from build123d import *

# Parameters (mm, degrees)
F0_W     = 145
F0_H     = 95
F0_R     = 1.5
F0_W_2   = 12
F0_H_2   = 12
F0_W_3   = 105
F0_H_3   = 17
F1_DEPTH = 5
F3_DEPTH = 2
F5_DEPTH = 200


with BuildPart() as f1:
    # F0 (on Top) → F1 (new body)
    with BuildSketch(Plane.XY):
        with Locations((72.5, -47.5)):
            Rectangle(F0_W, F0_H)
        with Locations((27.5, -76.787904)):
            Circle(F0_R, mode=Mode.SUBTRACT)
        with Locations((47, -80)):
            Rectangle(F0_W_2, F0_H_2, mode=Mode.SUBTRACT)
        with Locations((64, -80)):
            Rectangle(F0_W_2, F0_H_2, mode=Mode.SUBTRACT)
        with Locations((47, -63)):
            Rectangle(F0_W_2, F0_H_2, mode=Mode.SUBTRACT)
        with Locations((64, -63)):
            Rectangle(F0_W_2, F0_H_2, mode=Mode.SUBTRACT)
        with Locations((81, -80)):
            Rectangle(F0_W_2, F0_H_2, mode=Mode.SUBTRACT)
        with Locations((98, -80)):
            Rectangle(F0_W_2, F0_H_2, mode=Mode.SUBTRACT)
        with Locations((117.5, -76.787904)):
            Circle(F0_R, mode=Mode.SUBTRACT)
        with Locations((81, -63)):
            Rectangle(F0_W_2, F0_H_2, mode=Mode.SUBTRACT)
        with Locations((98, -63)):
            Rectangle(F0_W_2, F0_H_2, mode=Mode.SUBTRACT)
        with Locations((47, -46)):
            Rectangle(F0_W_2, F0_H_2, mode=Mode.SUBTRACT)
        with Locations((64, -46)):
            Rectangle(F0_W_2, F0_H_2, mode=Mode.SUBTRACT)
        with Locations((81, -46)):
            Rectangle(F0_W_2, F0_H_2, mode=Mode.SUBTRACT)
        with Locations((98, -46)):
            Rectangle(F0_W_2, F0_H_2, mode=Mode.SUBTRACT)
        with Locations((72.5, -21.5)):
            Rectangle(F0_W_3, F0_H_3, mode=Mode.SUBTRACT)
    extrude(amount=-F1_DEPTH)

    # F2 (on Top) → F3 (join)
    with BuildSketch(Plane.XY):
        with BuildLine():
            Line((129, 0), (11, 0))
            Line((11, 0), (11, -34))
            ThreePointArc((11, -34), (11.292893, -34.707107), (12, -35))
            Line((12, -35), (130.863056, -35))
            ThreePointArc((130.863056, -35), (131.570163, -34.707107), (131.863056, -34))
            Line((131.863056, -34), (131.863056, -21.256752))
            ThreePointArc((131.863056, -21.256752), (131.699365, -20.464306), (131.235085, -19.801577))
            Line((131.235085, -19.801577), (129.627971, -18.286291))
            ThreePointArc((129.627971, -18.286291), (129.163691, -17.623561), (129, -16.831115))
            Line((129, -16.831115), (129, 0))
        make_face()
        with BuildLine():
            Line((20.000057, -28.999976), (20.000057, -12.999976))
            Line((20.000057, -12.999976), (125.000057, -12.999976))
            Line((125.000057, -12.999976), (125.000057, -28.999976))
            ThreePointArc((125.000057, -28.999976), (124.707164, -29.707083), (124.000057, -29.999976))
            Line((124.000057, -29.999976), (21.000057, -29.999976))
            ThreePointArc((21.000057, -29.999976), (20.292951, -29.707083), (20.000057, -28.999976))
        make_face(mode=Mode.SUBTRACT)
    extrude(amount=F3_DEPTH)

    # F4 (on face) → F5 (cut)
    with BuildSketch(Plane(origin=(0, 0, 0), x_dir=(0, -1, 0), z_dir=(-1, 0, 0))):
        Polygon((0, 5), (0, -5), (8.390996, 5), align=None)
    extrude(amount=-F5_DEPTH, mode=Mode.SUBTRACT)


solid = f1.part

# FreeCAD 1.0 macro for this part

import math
import FreeCAD as App
import Part
import Sketcher
from FreeCAD import Vector
Q = App.Units.Quantity

doc = App.newDocument("Part")
params = doc.addObject("Spreadsheet::Sheet", "Params")
for row, (alias, value) in enumerate([
    ("sketch1_diameter", "3 mm"),
    ("sketch1_width", "145 mm"),
    ("sketch1_width2", "12 mm"),
    ("sketch1_width3", "105 mm"),
    ("sketch1_height", "95 mm"),
    ("pad1_length", "5 mm"),
    ("sketch2_radius", "0.999999 mm"),
    ("sketch2_width", "118 mm"),
    ("sketch2_width2", "105 mm"),
    ("sketch2_height", "34 mm"),
    ("sketch2_height2", "16 mm"),
    ("pad2_length", "2 mm"),
    ("sketch3_height", "10 mm"),
    ("pocket1_length", "200 mm"),
], start=1):
    params.set(f"A{row}", alias)
    params.set(f"B{row}", "=" + value)
    params.setAlias(f"B{row}", alias)

body = doc.addObject("PartDesign::Body", "Body")

# Sketch on XY plane
sketch1 = doc.addObject("Sketcher::SketchObject", "Sketch")
body.addObject(sketch1)
sketch1.AttachmentSupport = (doc.XY_Plane, [""])
sketch1.MapMode = "FlatFace"
sketch1.addGeometry([
    Part.LineSegment(Vector(0, 0, 0), Vector(0, -95, 0)),  # 0
    Part.LineSegment(Vector(0, -95, 0), Vector(145, -95, 0)),  # 1
    Part.LineSegment(Vector(145, -95, 0), Vector(145, 0, 0)),  # 2
    Part.LineSegment(Vector(145, 0, 0), Vector(0, 0, 0)),  # 3
    Part.Circle(Vector(27.5, -76.8, 0), Vector(0, 0, 1), 1.5),  # 4
    Part.LineSegment(Vector(53, -86, 0), Vector(41, -86, 0)),  # 5
    Part.LineSegment(Vector(41, -86, 0), Vector(41, -74, 0)),  # 6
    Part.LineSegment(Vector(41, -74, 0), Vector(53, -74, 0)),  # 7
    Part.LineSegment(Vector(53, -74, 0), Vector(53, -86, 0)),  # 8
    Part.LineSegment(Vector(70, -86, 0), Vector(58, -86, 0)),  # 9
    Part.LineSegment(Vector(58, -86, 0), Vector(58, -74, 0)),  # 10
    Part.LineSegment(Vector(58, -74, 0), Vector(70, -74, 0)),  # 11
    Part.LineSegment(Vector(70, -74, 0), Vector(70, -86, 0)),  # 12
    Part.LineSegment(Vector(53, -69, 0), Vector(41, -69, 0)),  # 13
    Part.LineSegment(Vector(41, -69, 0), Vector(41, -57, 0)),  # 14
    Part.LineSegment(Vector(41, -57, 0), Vector(53, -57, 0)),  # 15
    Part.LineSegment(Vector(53, -57, 0), Vector(53, -69, 0)),  # 16
    Part.LineSegment(Vector(70, -69, 0), Vector(58, -69, 0)),  # 17
    Part.LineSegment(Vector(58, -69, 0), Vector(58, -57, 0)),  # 18
    Part.LineSegment(Vector(58, -57, 0), Vector(70, -57, 0)),  # 19
    Part.LineSegment(Vector(70, -57, 0), Vector(70, -69, 0)),  # 20
    Part.LineSegment(Vector(87, -86, 0), Vector(75, -86, 0)),  # 21
    Part.LineSegment(Vector(75, -86, 0), Vector(75, -74, 0)),  # 22
    Part.LineSegment(Vector(75, -74, 0), Vector(87, -74, 0)),  # 23
    Part.LineSegment(Vector(87, -74, 0), Vector(87, -86, 0)),  # 24
    Part.LineSegment(Vector(104, -86, 0), Vector(92, -86, 0)),  # 25
    Part.LineSegment(Vector(92, -86, 0), Vector(92, -74, 0)),  # 26
    Part.LineSegment(Vector(92, -74, 0), Vector(104, -74, 0)),  # 27
    Part.LineSegment(Vector(104, -74, 0), Vector(104, -86, 0)),  # 28
    Part.Circle(Vector(117.5, -76.8, 0), Vector(0, 0, 1), 1.5),  # 29
    Part.LineSegment(Vector(87, -69, 0), Vector(75, -69, 0)),  # 30
    Part.LineSegment(Vector(75, -69, 0), Vector(75, -57, 0)),  # 31
    Part.LineSegment(Vector(75, -57, 0), Vector(87, -57, 0)),  # 32
    Part.LineSegment(Vector(87, -57, 0), Vector(87, -69, 0)),  # 33
    Part.LineSegment(Vector(104, -69, 0), Vector(92, -69, 0)),  # 34
    Part.LineSegment(Vector(92, -69, 0), Vector(92, -57, 0)),  # 35
    Part.LineSegment(Vector(92, -57, 0), Vector(104, -57, 0)),  # 36
    Part.LineSegment(Vector(104, -57, 0), Vector(104, -69, 0)),  # 37
    Part.LineSegment(Vector(53, -52, 0), Vector(41, -52, 0)),  # 38
    Part.LineSegment(Vector(41, -52, 0), Vector(41, -40, 0)),  # 39
    Part.LineSegment(Vector(41, -40, 0), Vector(53, -40, 0)),  # 40
    Part.LineSegment(Vector(53, -40, 0), Vector(53, -52, 0)),  # 41
    Part.LineSegment(Vector(70, -52, 0), Vector(58, -52, 0)),  # 42
    Part.LineSegment(Vector(58, -52, 0), Vector(58, -40, 0)),  # 43
    Part.LineSegment(Vector(58, -40, 0), Vector(70, -40, 0)),  # 44
    Part.LineSegment(Vector(70, -40, 0), Vector(70, -52, 0)),  # 45
    Part.LineSegment(Vector(87, -52, 0), Vector(75, -52, 0)),  # 46
    Part.LineSegment(Vector(75, -52, 0), Vector(75, -40, 0)),  # 47
    Part.LineSegment(Vector(75, -40, 0), Vector(87, -40, 0)),  # 48
    Part.LineSegment(Vector(87, -40, 0), Vector(87, -52, 0)),  # 49
    Part.LineSegment(Vector(104, -52, 0), Vector(92, -52, 0)),  # 50
    Part.LineSegment(Vector(92, -52, 0), Vector(92, -40, 0)),  # 51
    Part.LineSegment(Vector(92, -40, 0), Vector(104, -40, 0)),  # 52
    Part.LineSegment(Vector(104, -40, 0), Vector(104, -52, 0)),  # 53
    Part.LineSegment(Vector(125, -30, 0), Vector(20, -30, 0)),  # 54
    Part.LineSegment(Vector(20, -30, 0), Vector(20, -13, 0)),  # 55
    Part.LineSegment(Vector(20, -13, 0), Vector(125, -13, 0)),  # 56
    Part.LineSegment(Vector(125, -13, 0), Vector(125, -30, 0)),  # 57
], False)
sketch1.addConstraint([
    Sketcher.Constraint("Coincident", 0, 2, 1, 1),
    Sketcher.Constraint("Coincident", 1, 2, 2, 1),
    Sketcher.Constraint("Coincident", 2, 2, 3, 1),
    Sketcher.Constraint("Coincident", 3, 2, 0, 1),
    Sketcher.Constraint("Coincident", 5, 2, 6, 1),
    Sketcher.Constraint("Coincident", 6, 2, 7, 1),
    Sketcher.Constraint("Coincident", 7, 2, 8, 1),
    Sketcher.Constraint("Coincident", 8, 2, 5, 1),
    Sketcher.Constraint("Coincident", 9, 2, 10, 1),
    Sketcher.Constraint("Coincident", 10, 2, 11, 1),
    Sketcher.Constraint("Coincident", 11, 2, 12, 1),
    Sketcher.Constraint("Coincident", 12, 2, 9, 1),
    Sketcher.Constraint("Coincident", 13, 2, 14, 1),
    Sketcher.Constraint("Coincident", 14, 2, 15, 1),
    Sketcher.Constraint("Coincident", 15, 2, 16, 1),
    Sketcher.Constraint("Coincident", 16, 2, 13, 1),
    Sketcher.Constraint("Coincident", 17, 2, 18, 1),
    Sketcher.Constraint("Coincident", 18, 2, 19, 1),
    Sketcher.Constraint("Coincident", 19, 2, 20, 1),
    Sketcher.Constraint("Coincident", 20, 2, 17, 1),
    Sketcher.Constraint("Coincident", 21, 2, 22, 1),
    Sketcher.Constraint("Coincident", 22, 2, 23, 1),
    Sketcher.Constraint("Coincident", 23, 2, 24, 1),
    Sketcher.Constraint("Coincident", 24, 2, 21, 1),
    Sketcher.Constraint("Coincident", 25, 2, 26, 1),
    Sketcher.Constraint("Coincident", 26, 2, 27, 1),
    Sketcher.Constraint("Coincident", 27, 2, 28, 1),
    Sketcher.Constraint("Coincident", 28, 2, 25, 1),
    Sketcher.Constraint("Coincident", 30, 2, 31, 1),
    Sketcher.Constraint("Coincident", 31, 2, 32, 1),
    Sketcher.Constraint("Coincident", 32, 2, 33, 1),
    Sketcher.Constraint("Coincident", 33, 2, 30, 1),
    Sketcher.Constraint("Coincident", 34, 2, 35, 1),
    Sketcher.Constraint("Coincident", 35, 2, 36, 1),
    Sketcher.Constraint("Coincident", 36, 2, 37, 1),
    Sketcher.Constraint("Coincident", 37, 2, 34, 1),
    Sketcher.Constraint("Coincident", 38, 2, 39, 1),
    Sketcher.Constraint("Coincident", 39, 2, 40, 1),
    Sketcher.Constraint("Coincident", 40, 2, 41, 1),
    Sketcher.Constraint("Coincident", 41, 2, 38, 1),
    Sketcher.Constraint("Coincident", 42, 2, 43, 1),
    Sketcher.Constraint("Coincident", 43, 2, 44, 1),
    Sketcher.Constraint("Coincident", 44, 2, 45, 1),
    Sketcher.Constraint("Coincident", 45, 2, 42, 1),
    Sketcher.Constraint("Coincident", 46, 2, 47, 1),
    Sketcher.Constraint("Coincident", 47, 2, 48, 1),
    Sketcher.Constraint("Coincident", 48, 2, 49, 1),
    Sketcher.Constraint("Coincident", 49, 2, 46, 1),
    Sketcher.Constraint("Coincident", 50, 2, 51, 1),
    Sketcher.Constraint("Coincident", 51, 2, 52, 1),
    Sketcher.Constraint("Coincident", 52, 2, 53, 1),
    Sketcher.Constraint("Coincident", 53, 2, 50, 1),
    Sketcher.Constraint("Coincident", 54, 2, 55, 1),
    Sketcher.Constraint("Coincident", 55, 2, 56, 1),
    Sketcher.Constraint("Coincident", 56, 2, 57, 1),
    Sketcher.Constraint("Coincident", 57, 2, 54, 1),
    Sketcher.Constraint("Vertical", 0),
    Sketcher.Constraint("Horizontal", 1),
    Sketcher.Constraint("Vertical", 2),
    Sketcher.Constraint("Horizontal", 3),
    Sketcher.Constraint("Horizontal", 5),
    Sketcher.Constraint("Vertical", 6),
    Sketcher.Constraint("Horizontal", 7),
    Sketcher.Constraint("Vertical", 8),
    Sketcher.Constraint("Horizontal", 9),
    Sketcher.Constraint("Vertical", 10),
    Sketcher.Constraint("Horizontal", 11),
    Sketcher.Constraint("Vertical", 12),
    Sketcher.Constraint("Horizontal", 13),
    Sketcher.Constraint("Vertical", 14),
    Sketcher.Constraint("Horizontal", 15),
    Sketcher.Constraint("Vertical", 16),
    Sketcher.Constraint("Horizontal", 17),
    Sketcher.Constraint("Vertical", 18),
    Sketcher.Constraint("Horizontal", 19),
    Sketcher.Constraint("Vertical", 20),
    Sketcher.Constraint("Horizontal", 21),
    Sketcher.Constraint("Vertical", 22),
    Sketcher.Constraint("Horizontal", 23),
    Sketcher.Constraint("Vertical", 24),
    Sketcher.Constraint("Horizontal", 25),
    Sketcher.Constraint("Vertical", 26),
    Sketcher.Constraint("Horizontal", 27),
    Sketcher.Constraint("Vertical", 28),
    Sketcher.Constraint("Horizontal", 30),
    Sketcher.Constraint("Vertical", 31),
    Sketcher.Constraint("Horizontal", 32),
    Sketcher.Constraint("Vertical", 33),
    Sketcher.Constraint("Horizontal", 34),
    Sketcher.Constraint("Vertical", 35),
    Sketcher.Constraint("Horizontal", 36),
    Sketcher.Constraint("Vertical", 37),
    Sketcher.Constraint("Horizontal", 38),
    Sketcher.Constraint("Vertical", 39),
    Sketcher.Constraint("Horizontal", 40),
    Sketcher.Constraint("Vertical", 41),
    Sketcher.Constraint("Horizontal", 42),
    Sketcher.Constraint("Vertical", 43),
    Sketcher.Constraint("Horizontal", 44),
    Sketcher.Constraint("Vertical", 45),
    Sketcher.Constraint("Horizontal", 46),
    Sketcher.Constraint("Vertical", 47),
    Sketcher.Constraint("Horizontal", 48),
    Sketcher.Constraint("Vertical", 49),
    Sketcher.Constraint("Horizontal", 50),
    Sketcher.Constraint("Vertical", 51),
    Sketcher.Constraint("Horizontal", 52),
    Sketcher.Constraint("Vertical", 53),
    Sketcher.Constraint("Horizontal", 54),
    Sketcher.Constraint("Vertical", 55),
    Sketcher.Constraint("Horizontal", 56),
    Sketcher.Constraint("Vertical", 57),
    Sketcher.Constraint("Coincident", 3, 2, -1, 1),
    Sketcher.Constraint("Equal", 4, 29),
    Sketcher.Constraint("Horizontal", 4, 3, 29, 3),
    Sketcher.Constraint("Horizontal", 8, 2, 9, 2),
    Sketcher.Constraint("Horizontal", 7, 2, 10, 2),
    Sketcher.Constraint("Horizontal", 16, 2, 17, 2),
    Sketcher.Constraint("Horizontal", 15, 2, 18, 2),
    Sketcher.Constraint("Horizontal", 12, 2, 21, 2),
    Sketcher.Constraint("Horizontal", 11, 2, 22, 2),
    Sketcher.Constraint("Horizontal", 24, 2, 25, 2),
    Sketcher.Constraint("Horizontal", 23, 2, 26, 2),
    Sketcher.Constraint("Horizontal", 20, 2, 30, 2),
    Sketcher.Constraint("Horizontal", 19, 2, 31, 2),
    Sketcher.Constraint("Horizontal", 33, 2, 34, 2),
    Sketcher.Constraint("Horizontal", 32, 2, 35, 2),
    Sketcher.Constraint("Horizontal", 41, 2, 42, 2),
    Sketcher.Constraint("Horizontal", 40, 2, 43, 2),
    Sketcher.Constraint("Horizontal", 45, 2, 46, 2),
    Sketcher.Constraint("Horizontal", 44, 2, 47, 2),
    Sketcher.Constraint("Horizontal", 49, 2, 50, 2),
    Sketcher.Constraint("Horizontal", 48, 2, 51, 2),
    Sketcher.Constraint("Vertical", 6, 2, 13, 2),
    Sketcher.Constraint("Vertical", 8, 2, 15, 2),
    Sketcher.Constraint("Vertical", 10, 2, 17, 2),
    Sketcher.Constraint("Vertical", 12, 2, 19, 2),
    Sketcher.Constraint("Vertical", 22, 2, 30, 2),
    Sketcher.Constraint("Vertical", 24, 2, 32, 2),
    Sketcher.Constraint("Vertical", 26, 2, 34, 2),
    Sketcher.Constraint("Vertical", 28, 2, 36, 2),
    Sketcher.Constraint("Vertical", 14, 2, 38, 2),
    Sketcher.Constraint("Vertical", 16, 2, 40, 2),
    Sketcher.Constraint("Vertical", 18, 2, 42, 2),
    Sketcher.Constraint("Vertical", 20, 2, 44, 2),
    Sketcher.Constraint("Vertical", 31, 2, 46, 2),
    Sketcher.Constraint("Vertical", 33, 2, 48, 2),
    Sketcher.Constraint("Vertical", 35, 2, 50, 2),
    Sketcher.Constraint("Vertical", 37, 2, 52, 2),
    Sketcher.Constraint("Equal", 7, 9),
    Sketcher.Constraint("Equal", 19, 21),
    Sketcher.Constraint("Equal", 23, 25),
    Sketcher.Constraint("Equal", 52, 6),
    Sketcher.Constraint("Equal", 12, 14),
    Sketcher.Constraint("Equal", 37, 39),
    Sketcher.Constraint("Diameter", 4, Q("3 mm")),
    Sketcher.Constraint("DistanceX", 1, 1, 1, 2, Q("145 mm")),
    Sketcher.Constraint("DistanceX", 5, 2, 5, 1, Q("12 mm")),
    Sketcher.Constraint("DistanceX", 54, 2, 54, 1, Q("105 mm")),
    Sketcher.Constraint("DistanceY", 0, 2, 0, 1, Q("95 mm")),
    Sketcher.Constraint("DistanceY", 55, 1, 55, 2, Q("17 mm")),
    Sketcher.Constraint("DistanceX", -1, 1, 5, 2, Q("41 mm")),
    Sketcher.Constraint("DistanceY", 5, 2, -1, 1, Q("86 mm")),
    Sketcher.Constraint("DistanceX", -1, 1, 9, 2, Q("58 mm")),
    Sketcher.Constraint("DistanceY", 13, 2, -1, 1, Q("69 mm")),
    Sketcher.Constraint("DistanceX", -1, 1, 21, 2, Q("75 mm")),
    Sketcher.Constraint("DistanceX", -1, 1, 25, 2, Q("92 mm")),
    Sketcher.Constraint("DistanceY", 38, 2, -1, 1, Q("52 mm")),
    Sketcher.Constraint("DistanceX", -1, 1, 54, 2, Q("20 mm")),
    Sketcher.Constraint("DistanceY", 54, 2, -1, 1, Q("30 mm")),
    Sketcher.Constraint("DistanceX", 4, 3, 29, 3, Q("90 mm")),
    Sketcher.Constraint("DistanceX", -1, 1, 4, 3, Q("27.5 mm")),
    Sketcher.Constraint("DistanceY", 4, 3, -1, 1, Q("76.787904 mm")),
])
sketch1.setExpression("Constraints[155]", "Params.sketch1_diameter")
sketch1.setExpression("Constraints[156]", "Params.sketch1_width")
sketch1.setExpression("Constraints[157]", "Params.sketch1_width2")
sketch1.setExpression("Constraints[158]", "Params.sketch1_width3")
sketch1.setExpression("Constraints[159]", "Params.sketch1_height")
pad1 = doc.addObject("PartDesign::Pad", "Pad")
body.addObject(pad1)
pad1.Profile = sketch1
pad1.setExpression("Length", "Params.pad1_length")
pad1.Reversed = True

# Sketch on XY plane
sketch2 = doc.addObject("Sketcher::SketchObject", "Sketch001")
body.addObject(sketch2)
sketch2.AttachmentSupport = (doc.XY_Plane, [""])
sketch2.MapMode = "FlatFace"
sketch2.addGeometry([
    Part.LineSegment(Vector(129, 0, 0), Vector(11, 0, 0)),  # 0
    Part.LineSegment(Vector(11, 0, 0), Vector(11, -34, 0)),  # 1
    Part.ArcOfCircle(Part.Circle(Vector(12, -34, 0), Vector(0, 0, 1), 1), math.radians(180), math.radians(270)),  # 2
    Part.LineSegment(Vector(12, -35, 0), Vector(130.9, -35, 0)),  # 3
    Part.ArcOfCircle(Part.Circle(Vector(130.9, -34, 0), Vector(0, 0, 1), 1), math.radians(-90), math.radians(0)),  # 4
    Part.LineSegment(Vector(131.9, -34, 0), Vector(131.9, -21.3, 0)),  # 5
    Part.ArcOfCircle(Part.Circle(Vector(129.9, -21.3, 0), Vector(0, 0, 1), 2), math.radians(0), math.radians(47)),  # 6
    Part.LineSegment(Vector(131.2, -19.8, 0), Vector(129.6, -18.3, 0)),  # 7
    Part.ArcOfCircle(Part.Circle(Vector(131, -16.8, 0), Vector(0, 0, 1), 2), math.radians(180), math.radians(227)),  # 8
    Part.LineSegment(Vector(129, -16.8, 0), Vector(129, 0, 0)),  # 9
    Part.ArcOfCircle(Part.Circle(Vector(21, -29, 0), Vector(0, 0, 1), 1), math.radians(-180), math.radians(-90)),  # 10
    Part.LineSegment(Vector(20, -29, 0), Vector(20, -13, 0)),  # 11
    Part.LineSegment(Vector(20, -13, 0), Vector(125, -13, 0)),  # 12
    Part.LineSegment(Vector(125, -13, 0), Vector(125, -29, 0)),  # 13
    Part.ArcOfCircle(Part.Circle(Vector(124, -29, 0), Vector(0, 0, 1), 1), math.radians(-90), math.radians(0)),  # 14
    Part.LineSegment(Vector(124, -30, 0), Vector(21, -30, 0)),  # 15
], False)
sketch2.addConstraint([
    Sketcher.Constraint("Coincident", 0, 2, 1, 1),
    Sketcher.Constraint("Tangent", 1, 2, 2, 1),
    Sketcher.Constraint("Tangent", 2, 2, 3, 1),
    Sketcher.Constraint("Tangent", 3, 2, 4, 1),
    Sketcher.Constraint("Tangent", 4, 2, 5, 1),
    Sketcher.Constraint("Tangent", 5, 2, 6, 1),
    Sketcher.Constraint("Tangent", 6, 2, 7, 1),
    Sketcher.Constraint("Tangent", 7, 2, 8, 2),
    Sketcher.Constraint("Tangent", 8, 1, 9, 1),
    Sketcher.Constraint("Coincident", 9, 2, 0, 1),
    Sketcher.Constraint("Tangent", 10, 1, 11, 1),
    Sketcher.Constraint("Coincident", 11, 2, 12, 1),
    Sketcher.Constraint("Coincident", 12, 2, 13, 1),
    Sketcher.Constraint("Tangent", 13, 2, 14, 2),
    Sketcher.Constraint("Tangent", 14, 1, 15, 1),
    Sketcher.Constraint("Tangent", 15, 2, 10, 2),
    Sketcher.Constraint("Horizontal", 0),
    Sketcher.Constraint("Vertical", 1),
    Sketcher.Constraint("Horizontal", 3),
    Sketcher.Constraint("Vertical", 5),
    Sketcher.Constraint("Vertical", 9),
    Sketcher.Constraint("Vertical", 11),
    Sketcher.Constraint("Horizontal", 12),
    Sketcher.Constraint("Vertical", 13),
    Sketcher.Constraint("Horizontal", 15),
    Sketcher.Constraint("Equal", 2, 4),
    Sketcher.Constraint("Equal", 4, 10),
    Sketcher.Constraint("Equal", 10, 14),
    Sketcher.Constraint("PointOnObject", 0, 2, -1),
    Sketcher.Constraint("Radius", 2, Q("0.999999 mm")),
    Sketcher.Constraint("DistanceX", 0, 2, 0, 1, Q("118 mm")),
    Sketcher.Constraint("DistanceX", 12, 1, 12, 2, Q("105 mm")),
    Sketcher.Constraint("DistanceY", 1, 2, 1, 1, Q("34 mm")),
    Sketcher.Constraint("DistanceY", 11, 1, 11, 2, Q("16 mm")),
    Sketcher.Constraint("DistanceX", -1, 1, 2, 3, Q("11.999999 mm")),
    Sketcher.Constraint("Radius", 6, Q("1.999993 mm")),
    Sketcher.Constraint("Radius", 8, Q("1.999997 mm")),
    Sketcher.Constraint("DistanceX", 10, 3, 4, 3, Q("109.862999 mm")),
    Sketcher.Constraint("DistanceY", 5, 1, 5, 2, Q("12.743248 mm")),
    Sketcher.Constraint("DistanceY", 14, 3, 6, 2, Q("9.1984 mm")),
    Sketcher.Constraint("DistanceX", 3, 1, 3, 2, Q("118.863056 mm")),
    Sketcher.Constraint("DistanceY", 9, 1, 9, 2, Q("16.831115 mm")),
])
sketch2.setExpression("Constraints[29]", "Params.sketch2_radius")
sketch2.setExpression("Constraints[30]", "Params.sketch2_width")
sketch2.setExpression("Constraints[31]", "Params.sketch2_width2")
sketch2.setExpression("Constraints[32]", "Params.sketch2_height")
sketch2.setExpression("Constraints[33]", "Params.sketch2_height2")
pad2 = doc.addObject("PartDesign::Pad", "Pad001")
body.addObject(pad2)
pad2.Profile = sketch2
pad2.setExpression("Length", "Params.pad2_length")

# Sketch on YZ plane
sketch3 = doc.addObject("Sketcher::SketchObject", "Sketch002")
body.addObject(sketch3)
sketch3.AttachmentSupport = (doc.YZ_Plane, [""])
sketch3.MapMode = "FlatFace"
sketch3.addGeometry([
    Part.LineSegment(Vector(0, 5, 0), Vector(0, -5, 0)),
    Part.LineSegment(Vector(0, -5, 0), Vector(-8, 5, 0)),
    Part.LineSegment(Vector(-8, 5, 0), Vector(0, 5, 0)),
], False)
sketch3.addConstraint([
    Sketcher.Constraint("Coincident", 0, 2, 1, 1),
    Sketcher.Constraint("Coincident", 1, 2, 2, 1),
    Sketcher.Constraint("Coincident", 2, 2, 0, 1),
    Sketcher.Constraint("Vertical", 0),
    Sketcher.Constraint("Horizontal", 2),
    Sketcher.Constraint("Symmetric", 0, 2, 2, 2, -1, 1),
    Sketcher.Constraint("DistanceY", 0, 2, 0, 1, Q("10 mm")),
    Sketcher.Constraint("Angle", 1, Q("129.999999 deg")),
])
sketch3.setExpression("Constraints[6]", "Params.sketch3_height")
pocket1 = doc.addObject("PartDesign::Pocket", "Pocket")
body.addObject(pocket1)
pocket1.Profile = sketch3
pocket1.setExpression("Length", "Params.pocket1_length")
pocket1.Reversed = True

doc.recompute()
